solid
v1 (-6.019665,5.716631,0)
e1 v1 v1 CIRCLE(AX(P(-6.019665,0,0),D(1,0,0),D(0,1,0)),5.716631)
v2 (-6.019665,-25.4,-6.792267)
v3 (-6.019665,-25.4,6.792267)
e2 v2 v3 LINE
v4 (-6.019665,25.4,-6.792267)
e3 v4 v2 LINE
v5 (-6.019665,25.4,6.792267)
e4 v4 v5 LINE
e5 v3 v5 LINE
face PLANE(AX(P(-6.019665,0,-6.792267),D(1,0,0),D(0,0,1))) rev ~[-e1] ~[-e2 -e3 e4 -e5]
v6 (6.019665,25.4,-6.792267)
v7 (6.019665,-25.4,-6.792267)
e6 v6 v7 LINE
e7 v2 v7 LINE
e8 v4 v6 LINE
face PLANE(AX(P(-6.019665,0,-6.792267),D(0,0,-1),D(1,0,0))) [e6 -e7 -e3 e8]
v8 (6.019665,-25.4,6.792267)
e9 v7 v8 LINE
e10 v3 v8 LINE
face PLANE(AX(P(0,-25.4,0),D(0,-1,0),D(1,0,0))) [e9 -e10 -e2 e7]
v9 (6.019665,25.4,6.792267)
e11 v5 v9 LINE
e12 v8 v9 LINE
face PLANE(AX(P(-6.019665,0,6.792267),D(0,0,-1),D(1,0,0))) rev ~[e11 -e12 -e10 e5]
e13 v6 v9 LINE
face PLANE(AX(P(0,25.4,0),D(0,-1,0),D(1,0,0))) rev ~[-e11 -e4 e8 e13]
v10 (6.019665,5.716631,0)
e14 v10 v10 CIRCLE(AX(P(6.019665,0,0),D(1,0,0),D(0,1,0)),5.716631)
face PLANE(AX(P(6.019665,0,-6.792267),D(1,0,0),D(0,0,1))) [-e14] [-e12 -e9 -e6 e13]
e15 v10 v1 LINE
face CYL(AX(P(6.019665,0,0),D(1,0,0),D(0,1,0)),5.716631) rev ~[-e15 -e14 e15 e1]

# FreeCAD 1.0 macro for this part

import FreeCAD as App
import Part
import Sketcher

V = App.Vector
Q = App.Units.Quantity


def add_polygon(sketch, points):
    """Adds a closed chain of lines whose ends are joined by coincident constraints."""
    first, n = sketch.GeometryCount, len(points)
    for a, b in zip(points, points[1:] + points[:1]):
        sketch.addGeometry(Part.LineSegment(App.Vector(*a, 0), App.Vector(*b, 0)), False)
    for i in range(n):
        sketch.addConstraint(Sketcher.Constraint("Coincident", first + i, 2, first + (i + 1) % n, 1))

doc = App.newDocument("Part")
body = doc.addObject("PartDesign::Body", "Body")

# Sketch on XZ plane
sketch1 = body.newObject("Sketcher::SketchObject", "Sketch")
sketch1.AttachmentSupport = (doc.getObject("XZ_Plane"), [""])
sketch1.MapMode = "FlatFace"
add_polygon(sketch1, [(-6, 7), (-6, -7), (6, -7), (6, 7)])  # lines 0-3
sketch1.addConstraint(Sketcher.Constraint("Vertical", 0))
sketch1.addConstraint(Sketcher.Constraint("Horizontal", 1))
sketch1.addConstraint(Sketcher.Constraint("Vertical", 2))
sketch1.addConstraint(Sketcher.Constraint("Horizontal", 3))
sketch1.addConstraint(Sketcher.Constraint("Symmetric", 0, 2, 2, 2, -1, 1))
sketch1.addConstraint(Sketcher.Constraint("DistanceX", 1, 1, 1, 2, 12.03933))
sketch1.addConstraint(Sketcher.Constraint("DistanceY", 0, 2, 0, 1, 13.584534))
pad1 = body.newObject("PartDesign::Pad", "Pad")
pad1.Profile = sketch1
pad1.Type = "TwoLengths"
pad1.Length = Q("1 in")
pad1.Length2 = Q("1 in")

# Sketch on YZ plane
sketch2 = body.newObject("Sketcher::SketchObject", "Sketch001")
sketch2.AttachmentSupport = (doc.getObject("YZ_Plane"), [""])
sketch2.MapMode = "FlatFace"
sketch2.AttachmentOffset = App.Placement(V(0, 0, 6.019665), App.Rotation())
sketch2.addGeometry(Part.Circle(V(0, 0, 0), V(0, 0, 1), 6), False)
sketch2.addConstraint(Sketcher.Constraint("Coincident", 0, 3, -1, 1))
sketch2.addConstraint(Sketcher.Constraint("Diameter", 0, 11.433262))
pocket1 = body.newObject("PartDesign::Pocket", "Pocket")
pocket1.Profile = sketch2
pocket1.Length = Q("1 in")

doc.recompute()
